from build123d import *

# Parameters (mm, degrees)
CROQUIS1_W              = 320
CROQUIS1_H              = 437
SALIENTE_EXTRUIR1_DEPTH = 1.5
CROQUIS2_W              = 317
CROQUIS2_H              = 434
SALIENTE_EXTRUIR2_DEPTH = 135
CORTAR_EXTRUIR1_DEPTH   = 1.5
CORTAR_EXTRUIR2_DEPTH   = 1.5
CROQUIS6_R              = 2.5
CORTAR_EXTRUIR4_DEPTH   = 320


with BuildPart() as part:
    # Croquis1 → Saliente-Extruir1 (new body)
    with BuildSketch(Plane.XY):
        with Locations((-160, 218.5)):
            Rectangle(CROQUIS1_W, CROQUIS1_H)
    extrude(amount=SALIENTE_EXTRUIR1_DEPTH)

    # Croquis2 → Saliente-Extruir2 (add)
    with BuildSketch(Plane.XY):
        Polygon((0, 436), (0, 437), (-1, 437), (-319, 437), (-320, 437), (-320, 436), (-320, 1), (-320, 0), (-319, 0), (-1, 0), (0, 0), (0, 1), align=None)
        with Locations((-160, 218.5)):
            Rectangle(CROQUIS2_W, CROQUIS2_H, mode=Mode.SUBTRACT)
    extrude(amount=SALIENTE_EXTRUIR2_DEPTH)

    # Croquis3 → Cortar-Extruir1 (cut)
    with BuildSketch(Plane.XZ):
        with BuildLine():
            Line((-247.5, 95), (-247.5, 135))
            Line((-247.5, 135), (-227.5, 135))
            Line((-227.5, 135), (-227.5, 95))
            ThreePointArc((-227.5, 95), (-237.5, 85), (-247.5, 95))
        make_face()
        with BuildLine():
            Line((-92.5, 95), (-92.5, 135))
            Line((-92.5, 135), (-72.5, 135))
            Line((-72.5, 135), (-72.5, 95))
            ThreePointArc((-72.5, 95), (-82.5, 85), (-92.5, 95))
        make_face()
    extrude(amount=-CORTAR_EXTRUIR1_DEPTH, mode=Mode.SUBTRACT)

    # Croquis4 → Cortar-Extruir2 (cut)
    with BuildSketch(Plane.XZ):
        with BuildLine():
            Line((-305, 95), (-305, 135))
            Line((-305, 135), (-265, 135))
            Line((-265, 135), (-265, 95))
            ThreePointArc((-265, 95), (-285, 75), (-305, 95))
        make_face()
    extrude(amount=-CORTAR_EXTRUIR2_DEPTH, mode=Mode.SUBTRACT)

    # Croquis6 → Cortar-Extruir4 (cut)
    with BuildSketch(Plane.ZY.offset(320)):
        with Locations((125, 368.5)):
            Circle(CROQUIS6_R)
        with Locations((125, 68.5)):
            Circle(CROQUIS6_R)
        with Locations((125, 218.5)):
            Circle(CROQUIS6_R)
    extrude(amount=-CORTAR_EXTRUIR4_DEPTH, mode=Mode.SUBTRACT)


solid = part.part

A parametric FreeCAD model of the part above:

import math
import FreeCAD as App
import Part
import Sketcher

V = App.Vector
Q = App.Units.Quantity


def add_polygon(sketch, points):
    """Adds a closed chain of lines whose ends are joined by coincident constraints."""
    first, n = sketch.GeometryCount, len(points)
    for a, b in zip(points, points[1:] + points[:1]):
        sketch.addGeometry(Part.LineSegment(App.Vector(*a, 0), App.Vector(*b, 0)), False)
    for i in range(n):
        sketch.addConstraint(Sketcher.Constraint("Coincident", first + i, 2, first + (i + 1) % n, 1))

doc = App.newDocument("Part")
params = doc.addObject("Spreadsheet::Sheet", "Params")
for row, (alias, value) in enumerate([
    ("sketch1_width", "320 mm"),
    ("sketch1_height", "437 mm"),
    ("pad1_length", "1.5 mm"),
    ("sketch2_width", "320 mm"),
    ("sketch2_width2", "317 mm"),
    ("sketch2_height", "437 mm"),
    ("sketch2_height2", "434 mm"),
    ("pad2_length", "135 mm"),
    ("sketch3_radius", "10 mm"),
    ("sketch3_height", "40 mm"),
    ("pocket1_length", "1.5 mm"),
    ("sketch4_radius", "20 mm"),
    ("pocket2_length", "1.5 mm"),
    ("sketch5_diameter", "5 mm"),
    ("pocket3_length", "320 mm"),
], start=1):
    params.set(f"A{row}", alias)
    params.set(f"B{row}", "=" + value)
    params.setAlias(f"B{row}", alias)

body = doc.addObject("PartDesign::Body", "Body")

# Sketch on XY plane
sketch1 = doc.addObject("Sketcher::SketchObject", "Sketch")
body.addObject(sketch1)
sketch1.AttachmentSupport = (doc.XY_Plane, [""])
sketch1.MapMode = "FlatFace"
add_polygon(sketch1, [(-320, 437), (-320, 0), (0, 0), (0, 437)])  # lines 0-3
sketch1.addConstraint(Sketcher.Constraint("Vertical", 0))
sketch1.addConstraint(Sketcher.Constraint("Horizontal", 1))
sketch1.addConstraint(Sketcher.Constraint("Vertical", 2))
sketch1.addConstraint(Sketcher.Constraint("Horizontal", 3))
sketch1.addConstraint(Sketcher.Constraint("Coincident", 1, 2, -1, 1))
sketch1.addConstraint(Sketcher.Constraint("DistanceX", 1, 1, 1, 2, Q("320 mm")))
sketch1.addConstraint(Sketcher.Constraint("DistanceY", 0, 2, 0, 1, Q("437 mm")))
sketch1.setExpression("Constraints[9]", "Params.sketch1_width")
sketch1.setExpression("Constraints[10]", "Params.sketch1_height")
pad1 = doc.addObject("PartDesign::Pad", "Pad")
body.addObject(pad1)
pad1.Profile = sketch1
pad1.setExpression("Length", "Params.pad1_length")

# Sketch on XY plane
sketch2 = doc.addObject("Sketcher::SketchObject", "Sketch001")
body.addObject(sketch2)
sketch2.AttachmentSupport = (doc.XY_Plane, [""])
sketch2.MapMode = "FlatFace"
add_polygon(sketch2, [(0, 437), (-320, 437), (-320, 0), (0, 0)])  # lines 0-3
add_polygon(sketch2, [(-2, 2), (-318, 2), (-318, 436), (-2, 436)])  # lines 4-7
sketch2.addConstraint(Sketcher.Constraint("Horizontal", 0))
sketch2.addConstraint(Sketcher.Constraint("Vertical", 1))
sketch2.addConstraint(Sketcher.Constraint("Horizontal", 2))
sketch2.addConstraint(Sketcher.Constraint("Vertical", 3))
sketch2.addConstraint(Sketcher.Constraint("Horizontal", 4))
sketch2.addConstraint(Sketcher.Constraint("Vertical", 5))
sketch2.addConstraint(Sketcher.Constraint("Horizontal", 6))
sketch2.addConstraint(Sketcher.Constraint("Vertical", 7))
sketch2.addConstraint(Sketcher.Constraint("Coincident", 2, 2, -1, 1))
sketch2.addConstraint(Sketcher.Constraint("DistanceX", 0, 2, 0, 1, Q("320 mm")))
sketch2.addConstraint(Sketcher.Constraint("DistanceX", 4, 2, 4, 1, Q("317 mm")))
sketch2.addConstraint(Sketcher.Constraint("DistanceY", 1, 2, 1, 1, Q("437 mm")))
sketch2.addConstraint(Sketcher.Constraint("DistanceY", 5, 1, 5, 2, Q("434 mm")))
sketch2.addConstraint(Sketcher.Constraint("DistanceX", 4, 2, -1, 1, Q("318.5 mm")))
sketch2.addConstraint(Sketcher.Constraint("DistanceY", -1, 1, 4, 2, Q("1.5 mm")))
sketch2.setExpression("Constraints[17]", "Params.sketch2_width")
sketch2.setExpression("Constraints[18]", "Params.sketch2_width2")
sketch2.setExpression("Constraints[19]", "Params.sketch2_height")
sketch2.setExpression("Constraints[20]", "Params.sketch2_height2")
pad2 = doc.addObject("PartDesign::Pad", "Pad001")
body.addObject(pad2)
pad2.Profile = sketch2
pad2.setExpression("Length", "Params.pad2_length")

# Sketch on XZ plane
sketch3 = doc.addObject("Sketcher::SketchObject", "Sketch002")
body.addObject(sketch3)
sketch3.AttachmentSupport = (doc.XZ_Plane, [""])
sketch3.MapMode = "FlatFace"
sketch3.addGeometry(Part.LineSegment(V(-248, 135, 0), V(-248, 95, 0)), False)
sketch3.addGeometry(Part.ArcOfCircle(Part.Circle(V(-238, 95, 0), V(0, 0, 1), 10), math.radians(180), math.radians(360)), False)
sketch3.addGeometry(Part.LineSegment(V(-228, 95, 0), V(-228, 135, 0)), False)
sketch3.addGeometry(Part.LineSegment(V(-228, 135, 0), V(-248, 135, 0)), False)
sketch3.addGeometry(Part.LineSegment(V(-92, 135, 0), V(-92, 95, 0)), False)
sketch3.addGeometry(Part.ArcOfCircle(Part.Circle(V(-82, 95, 0), V(0, 0, 1), 10), math.radians(180), math.radians(360)), False)
sketch3.addGeometry(Part.LineSegment(V(-72, 95, 0), V(-72, 135, 0)), False)
sketch3.addGeometry(Part.LineSegment(V(-72, 135, 0), V(-92, 135, 0)), False)
sketch3.addConstraint(Sketcher.Constraint("Tangent", 0, 2, 1, 1))
sketch3.addConstraint(Sketcher.Constraint("Tangent", 1, 2, 2, 1))
sketch3.addConstraint(Sketcher.Constraint("Coincident", 2, 2, 3, 1))
sketch3.addConstraint(Sketcher.Constraint("Coincident", 3, 2, 0, 1))
sketch3.addConstraint(Sketcher.Constraint("Tangent", 4, 2, 5, 1))
sketch3.addConstraint(Sketcher.Constraint("Tangent", 5, 2, 6, 1))
sketch3.addConstraint(Sketcher.Constraint("Coincident", 6, 2, 7, 1))
sketch3.addConstraint(Sketcher.Constraint("Coincident", 7, 2, 4, 1))
sketch3.addConstraint(Sketcher.Constraint("Vertical", 0))
sketch3.addConstraint(Sketcher.Constraint("Vertical", 2))
sketch3.addConstraint(Sketcher.Constraint("Horizontal", 3))
sketch3.addConstraint(Sketcher.Constraint("Vertical", 4))
sketch3.addConstraint(Sketcher.Constraint("Vertical", 6))
sketch3.addConstraint(Sketcher.Constraint("Horizontal", 7))
sketch3.addConstraint(Sketcher.Constraint("Equal", 1, 5))
sketch3.addConstraint(Sketcher.Constraint("Horizontal", 1, 3, 5, 3))
sketch3.addConstraint(Sketcher.Constraint("Horizontal", 3, 2, 6, 2))
sketch3.addConstraint(Sketcher.Constraint("Radius", 1, Q("10 mm")))
sketch3.addConstraint(Sketcher.Constraint("DistanceY", 0, 2, 0, 1, Q("40 mm")))
sketch3.addConstraint(Sketcher.Constraint("DistanceY", -1, 1, 1, 3, Q("95 mm")))
sketch3.addConstraint(Sketcher.Constraint("DistanceX", 1, 3, 5, 3, Q("155 mm")))
sketch3.addConstraint(Sketcher.Constraint("DistanceX", 1, 3, -1, 1, Q("237.5 mm")))
sketch3.setExpression("Constraints[17]", "Params.sketch3_radius")
sketch3.setExpression("Constraints[18]", "Params.sketch3_height")
pocket1 = doc.addObject("PartDesign::Pocket", "Pocket")
body.addObject(pocket1)
pocket1.Profile = sketch3
pocket1.setExpression("Length", "Params.pocket1_length")

# Sketch on XZ plane
sketch4 = doc.addObject("Sketcher::SketchObject", "Sketch003")
body.addObject(sketch4)
sketch4.AttachmentSupport = (doc.XZ_Plane, [""])
sketch4.MapMode = "FlatFace"
sketch4.addGeometry(Part.LineSegment(V(-305, 135, 0), V(-305, 95, 0)), False)
sketch4.addGeometry(Part.ArcOfCircle(Part.Circle(V(-285, 95, 0), V(0, 0, 1), 20), math.radians(180), math.radians(360)), False)
sketch4.addGeometry(Part.LineSegment(V(-265, 95, 0), V(-265, 135, 0)), False)
sketch4.addGeometry(Part.LineSegment(V(-265, 135, 0), V(-305, 135, 0)), False)
sketch4.addConstraint(Sketcher.Constraint("Tangent", 0, 2, 1, 1))
sketch4.addConstraint(Sketcher.Constraint("Tangent", 1, 2, 2, 1))
sketch4.addConstraint(Sketcher.Constraint("Coincident", 2, 2, 3, 1))
sketch4.addConstraint(Sketcher.Constraint("Coincident", 3, 2, 0, 1))
sketch4.addConstraint(Sketcher.Constraint("Vertical", 0))
sketch4.addConstraint(Sketcher.Constraint("Vertical", 2))
sketch4.addConstraint(Sketcher.Constraint("Horizontal", 3))
sketch4.addConstraint(Sketcher.Constraint("Equal", 3, 0))
sketch4.addConstraint(Sketcher.Constraint("Radius", 1, Q("20 mm")))
sketch4.addConstraint(Sketcher.Constraint("DistanceX", 1, 3, -1, 1, Q("285 mm")))
sketch4.addConstraint(Sketcher.Constraint("DistanceY", -1, 1, 1, 3, Q("95 mm")))
sketch4.setExpression("Constraints[8]", "Params.sketch4_radius")
pocket2 = doc.addObject("PartDesign::Pocket", "Pocket001")
body.addObject(pocket2)
pocket2.Profile = sketch4
pocket2.setExpression("Length", "Params.pocket2_length")

# Sketch on YZ plane
sketch5 = doc.addObject("Sketcher::SketchObject", "Sketch004")
body.addObject(sketch5)
sketch5.AttachmentSupport = (doc.YZ_Plane, [""])
sketch5.MapMode = "FlatFace"
sketch5.AttachmentOffset = App.Placement(V(0, 0, -320), App.Rotation())
sketch5.addGeometry(Part.Circle(V(368.5, 125, 0), V(0, 0, 1), 2.5), False)
sketch5.addGeometry(Part.Circle(V(68.5, 125, 0), V(0, 0, 1), 2.5), False)
sketch5.addGeometry(Part.Circle(V(218.5, 125, 0), V(0, 0, 1), 2.5), False)
sketch5.addConstraint(Sketcher.Constraint("Equal", 0, 1))
sketch5.addConstraint(Sketcher.Constraint("Equal", 1, 2))
sketch5.addConstraint(Sketcher.Constraint("Horizontal", 0, 3, 1, 3))
sketch5.addConstraint(Sketcher.Constraint("Horizontal", 1, 3, 2, 3))
sketch5.addConstraint(Sketcher.Constraint("Diameter", 0, Q("5 mm")))
sketch5.addConstraint(Sketcher.Constraint("DistanceY", -1, 1, 0, 3, Q("125 mm")))
sketch5.addConstraint(Sketcher.Constraint("DistanceX", 1, 3, 0, 3, Q("300 mm")))
sketch5.addConstraint(Sketcher.Constraint("DistanceX", 2, 3, 0, 3, Q("150 mm")))
sketch5.addConstraint(Sketcher.Constraint("DistanceX", -1, 1, 0, 3, Q("368.5 mm")))
sketch5.setExpression("Constraints[4]", "Params.sketch5_diameter")
pocket3 = doc.addObject("PartDesign::Pocket", "Pocket002")
body.addObject(pocket3)
pocket3.Profile = sketch5
pocket3.setExpression("Length", "Params.pocket3_length")
pocket3.Reversed = True

doc.recompute()
